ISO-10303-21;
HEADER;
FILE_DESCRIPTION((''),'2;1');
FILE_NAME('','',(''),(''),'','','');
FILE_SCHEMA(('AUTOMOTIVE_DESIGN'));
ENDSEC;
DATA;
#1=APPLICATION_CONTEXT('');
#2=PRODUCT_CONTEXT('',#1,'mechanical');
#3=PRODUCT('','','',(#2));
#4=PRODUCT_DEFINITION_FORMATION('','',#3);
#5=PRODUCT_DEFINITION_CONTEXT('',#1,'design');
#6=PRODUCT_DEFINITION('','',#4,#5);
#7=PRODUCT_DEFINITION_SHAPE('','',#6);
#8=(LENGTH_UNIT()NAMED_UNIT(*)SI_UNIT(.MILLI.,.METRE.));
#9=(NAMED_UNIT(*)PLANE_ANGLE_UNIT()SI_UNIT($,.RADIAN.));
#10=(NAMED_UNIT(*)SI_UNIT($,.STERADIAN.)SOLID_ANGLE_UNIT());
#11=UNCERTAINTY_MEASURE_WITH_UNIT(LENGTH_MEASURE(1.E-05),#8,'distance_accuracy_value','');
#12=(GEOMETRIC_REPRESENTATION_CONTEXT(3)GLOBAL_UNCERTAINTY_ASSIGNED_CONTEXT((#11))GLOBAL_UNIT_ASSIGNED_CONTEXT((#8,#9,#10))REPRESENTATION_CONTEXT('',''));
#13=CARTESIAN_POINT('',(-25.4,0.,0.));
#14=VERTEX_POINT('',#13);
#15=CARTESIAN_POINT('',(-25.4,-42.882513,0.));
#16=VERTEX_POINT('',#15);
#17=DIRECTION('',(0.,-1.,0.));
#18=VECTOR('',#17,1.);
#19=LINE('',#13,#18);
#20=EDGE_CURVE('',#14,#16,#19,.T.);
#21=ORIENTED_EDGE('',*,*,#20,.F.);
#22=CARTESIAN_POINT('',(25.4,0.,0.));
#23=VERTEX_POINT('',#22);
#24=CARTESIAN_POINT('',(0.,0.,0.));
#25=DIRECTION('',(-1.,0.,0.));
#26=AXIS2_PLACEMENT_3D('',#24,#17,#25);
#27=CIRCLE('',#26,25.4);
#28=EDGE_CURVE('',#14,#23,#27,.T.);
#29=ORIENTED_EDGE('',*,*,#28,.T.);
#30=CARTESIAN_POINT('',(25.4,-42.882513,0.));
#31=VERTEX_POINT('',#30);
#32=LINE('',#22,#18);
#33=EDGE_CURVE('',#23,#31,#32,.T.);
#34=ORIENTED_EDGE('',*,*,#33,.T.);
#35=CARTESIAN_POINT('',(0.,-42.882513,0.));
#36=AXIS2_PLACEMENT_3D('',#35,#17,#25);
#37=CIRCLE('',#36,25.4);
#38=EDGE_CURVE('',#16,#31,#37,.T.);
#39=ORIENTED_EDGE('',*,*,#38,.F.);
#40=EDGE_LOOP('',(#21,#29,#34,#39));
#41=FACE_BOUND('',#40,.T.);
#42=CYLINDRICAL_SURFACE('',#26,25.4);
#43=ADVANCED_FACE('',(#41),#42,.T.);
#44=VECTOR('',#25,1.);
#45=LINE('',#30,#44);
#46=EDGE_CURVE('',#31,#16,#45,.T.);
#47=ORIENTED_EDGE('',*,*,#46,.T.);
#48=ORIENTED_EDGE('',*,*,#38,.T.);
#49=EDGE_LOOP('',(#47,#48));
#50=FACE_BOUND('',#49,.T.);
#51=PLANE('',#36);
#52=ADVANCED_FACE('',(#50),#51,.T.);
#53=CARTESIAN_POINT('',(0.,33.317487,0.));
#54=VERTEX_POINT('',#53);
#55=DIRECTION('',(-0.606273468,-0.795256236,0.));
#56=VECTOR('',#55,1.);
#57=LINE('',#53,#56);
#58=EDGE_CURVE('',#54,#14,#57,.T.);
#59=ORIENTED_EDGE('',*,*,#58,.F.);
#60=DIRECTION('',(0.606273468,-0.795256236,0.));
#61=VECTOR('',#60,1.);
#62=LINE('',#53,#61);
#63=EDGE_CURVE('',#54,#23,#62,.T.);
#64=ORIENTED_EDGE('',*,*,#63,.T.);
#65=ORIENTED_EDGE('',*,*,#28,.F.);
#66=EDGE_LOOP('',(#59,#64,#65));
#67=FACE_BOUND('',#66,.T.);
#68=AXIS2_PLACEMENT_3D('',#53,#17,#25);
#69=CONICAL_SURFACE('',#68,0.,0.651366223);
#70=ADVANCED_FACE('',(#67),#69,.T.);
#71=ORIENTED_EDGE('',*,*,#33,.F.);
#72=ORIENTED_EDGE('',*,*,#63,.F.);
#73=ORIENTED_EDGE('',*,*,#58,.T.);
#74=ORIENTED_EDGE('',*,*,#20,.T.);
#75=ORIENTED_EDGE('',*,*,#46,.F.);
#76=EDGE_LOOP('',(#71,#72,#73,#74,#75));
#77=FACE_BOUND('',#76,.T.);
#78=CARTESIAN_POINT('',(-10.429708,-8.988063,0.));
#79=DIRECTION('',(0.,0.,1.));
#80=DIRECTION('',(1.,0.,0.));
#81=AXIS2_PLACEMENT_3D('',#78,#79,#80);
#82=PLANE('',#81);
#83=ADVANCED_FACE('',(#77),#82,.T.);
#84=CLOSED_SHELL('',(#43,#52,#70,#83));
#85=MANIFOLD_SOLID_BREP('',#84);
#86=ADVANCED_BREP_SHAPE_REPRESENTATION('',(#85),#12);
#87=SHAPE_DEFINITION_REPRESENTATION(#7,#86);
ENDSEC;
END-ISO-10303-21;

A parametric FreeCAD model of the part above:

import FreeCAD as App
import Part
import Sketcher
from FreeCAD import Vector
Q = App.Units.Quantity

doc = App.newDocument("Part")
body = doc.addObject("PartDesign::Body", "Body")

sketch1 = body.newObject("Sketcher::SketchObject", "Sketch")
sketch1.AttachmentSupport = (doc.getObject("XY_Plane"), [""])
sketch1.MapMode = "FlatFace"
sketch1.addGeometry(Part.LineSegment(Vector(0, -43, 0), Vector(0, 33, 0)), False)
sketch1.addGeometry(Part.LineSegment(Vector(0, 33, 0), Vector(-25, 0, 0)), False)
sketch1.addGeometry(Part.LineSegment(Vector(-25, 0, 0), Vector(-25, -43, 0)), False)
sketch1.addGeometry(Part.LineSegment(Vector(-25, -43, 0), Vector(0, -43, 0)), False)
sketch1.addConstraint(Sketcher.Constraint("Coincident", 0, 2, 1, 1))
sketch1.addConstraint(Sketcher.Constraint("Coincident", 1, 2, 2, 1))
sketch1.addConstraint(Sketcher.Constraint("Coincident", 2, 2, 3, 1))
sketch1.addConstraint(Sketcher.Constraint("Coincident", 3, 2, 0, 1))
sketch1.addConstraint(Sketcher.Constraint("Vertical", 0))
sketch1.addConstraint(Sketcher.Constraint("Vertical", 2))
sketch1.addConstraint(Sketcher.Constraint("Horizontal", 3))
sketch1.addConstraint(Sketcher.Constraint("PointOnObject", 0, 2, -2))
sketch1.addConstraint(Sketcher.Constraint("PointOnObject", 1, 2, -1))
sketch1.addConstraint(Sketcher.Constraint("DistanceX", 3, 1, 3, 2, Q("1 in")))
sketch1.addConstraint(Sketcher.Constraint("DistanceY", 0, 1, 0, 2, Q("3 in")))
sketch1.addConstraint(Sketcher.Constraint("DistanceY", 2, 2, 2, 1, 42.882513))
revolution = body.newObject("PartDesign::Revolution", "Revolution")
revolution.Profile = sketch1
revolution.ReferenceAxis = (sketch1, ["V_Axis"])
revolution.Angle = 180
revolution.Reversed = True

doc.recompute()
